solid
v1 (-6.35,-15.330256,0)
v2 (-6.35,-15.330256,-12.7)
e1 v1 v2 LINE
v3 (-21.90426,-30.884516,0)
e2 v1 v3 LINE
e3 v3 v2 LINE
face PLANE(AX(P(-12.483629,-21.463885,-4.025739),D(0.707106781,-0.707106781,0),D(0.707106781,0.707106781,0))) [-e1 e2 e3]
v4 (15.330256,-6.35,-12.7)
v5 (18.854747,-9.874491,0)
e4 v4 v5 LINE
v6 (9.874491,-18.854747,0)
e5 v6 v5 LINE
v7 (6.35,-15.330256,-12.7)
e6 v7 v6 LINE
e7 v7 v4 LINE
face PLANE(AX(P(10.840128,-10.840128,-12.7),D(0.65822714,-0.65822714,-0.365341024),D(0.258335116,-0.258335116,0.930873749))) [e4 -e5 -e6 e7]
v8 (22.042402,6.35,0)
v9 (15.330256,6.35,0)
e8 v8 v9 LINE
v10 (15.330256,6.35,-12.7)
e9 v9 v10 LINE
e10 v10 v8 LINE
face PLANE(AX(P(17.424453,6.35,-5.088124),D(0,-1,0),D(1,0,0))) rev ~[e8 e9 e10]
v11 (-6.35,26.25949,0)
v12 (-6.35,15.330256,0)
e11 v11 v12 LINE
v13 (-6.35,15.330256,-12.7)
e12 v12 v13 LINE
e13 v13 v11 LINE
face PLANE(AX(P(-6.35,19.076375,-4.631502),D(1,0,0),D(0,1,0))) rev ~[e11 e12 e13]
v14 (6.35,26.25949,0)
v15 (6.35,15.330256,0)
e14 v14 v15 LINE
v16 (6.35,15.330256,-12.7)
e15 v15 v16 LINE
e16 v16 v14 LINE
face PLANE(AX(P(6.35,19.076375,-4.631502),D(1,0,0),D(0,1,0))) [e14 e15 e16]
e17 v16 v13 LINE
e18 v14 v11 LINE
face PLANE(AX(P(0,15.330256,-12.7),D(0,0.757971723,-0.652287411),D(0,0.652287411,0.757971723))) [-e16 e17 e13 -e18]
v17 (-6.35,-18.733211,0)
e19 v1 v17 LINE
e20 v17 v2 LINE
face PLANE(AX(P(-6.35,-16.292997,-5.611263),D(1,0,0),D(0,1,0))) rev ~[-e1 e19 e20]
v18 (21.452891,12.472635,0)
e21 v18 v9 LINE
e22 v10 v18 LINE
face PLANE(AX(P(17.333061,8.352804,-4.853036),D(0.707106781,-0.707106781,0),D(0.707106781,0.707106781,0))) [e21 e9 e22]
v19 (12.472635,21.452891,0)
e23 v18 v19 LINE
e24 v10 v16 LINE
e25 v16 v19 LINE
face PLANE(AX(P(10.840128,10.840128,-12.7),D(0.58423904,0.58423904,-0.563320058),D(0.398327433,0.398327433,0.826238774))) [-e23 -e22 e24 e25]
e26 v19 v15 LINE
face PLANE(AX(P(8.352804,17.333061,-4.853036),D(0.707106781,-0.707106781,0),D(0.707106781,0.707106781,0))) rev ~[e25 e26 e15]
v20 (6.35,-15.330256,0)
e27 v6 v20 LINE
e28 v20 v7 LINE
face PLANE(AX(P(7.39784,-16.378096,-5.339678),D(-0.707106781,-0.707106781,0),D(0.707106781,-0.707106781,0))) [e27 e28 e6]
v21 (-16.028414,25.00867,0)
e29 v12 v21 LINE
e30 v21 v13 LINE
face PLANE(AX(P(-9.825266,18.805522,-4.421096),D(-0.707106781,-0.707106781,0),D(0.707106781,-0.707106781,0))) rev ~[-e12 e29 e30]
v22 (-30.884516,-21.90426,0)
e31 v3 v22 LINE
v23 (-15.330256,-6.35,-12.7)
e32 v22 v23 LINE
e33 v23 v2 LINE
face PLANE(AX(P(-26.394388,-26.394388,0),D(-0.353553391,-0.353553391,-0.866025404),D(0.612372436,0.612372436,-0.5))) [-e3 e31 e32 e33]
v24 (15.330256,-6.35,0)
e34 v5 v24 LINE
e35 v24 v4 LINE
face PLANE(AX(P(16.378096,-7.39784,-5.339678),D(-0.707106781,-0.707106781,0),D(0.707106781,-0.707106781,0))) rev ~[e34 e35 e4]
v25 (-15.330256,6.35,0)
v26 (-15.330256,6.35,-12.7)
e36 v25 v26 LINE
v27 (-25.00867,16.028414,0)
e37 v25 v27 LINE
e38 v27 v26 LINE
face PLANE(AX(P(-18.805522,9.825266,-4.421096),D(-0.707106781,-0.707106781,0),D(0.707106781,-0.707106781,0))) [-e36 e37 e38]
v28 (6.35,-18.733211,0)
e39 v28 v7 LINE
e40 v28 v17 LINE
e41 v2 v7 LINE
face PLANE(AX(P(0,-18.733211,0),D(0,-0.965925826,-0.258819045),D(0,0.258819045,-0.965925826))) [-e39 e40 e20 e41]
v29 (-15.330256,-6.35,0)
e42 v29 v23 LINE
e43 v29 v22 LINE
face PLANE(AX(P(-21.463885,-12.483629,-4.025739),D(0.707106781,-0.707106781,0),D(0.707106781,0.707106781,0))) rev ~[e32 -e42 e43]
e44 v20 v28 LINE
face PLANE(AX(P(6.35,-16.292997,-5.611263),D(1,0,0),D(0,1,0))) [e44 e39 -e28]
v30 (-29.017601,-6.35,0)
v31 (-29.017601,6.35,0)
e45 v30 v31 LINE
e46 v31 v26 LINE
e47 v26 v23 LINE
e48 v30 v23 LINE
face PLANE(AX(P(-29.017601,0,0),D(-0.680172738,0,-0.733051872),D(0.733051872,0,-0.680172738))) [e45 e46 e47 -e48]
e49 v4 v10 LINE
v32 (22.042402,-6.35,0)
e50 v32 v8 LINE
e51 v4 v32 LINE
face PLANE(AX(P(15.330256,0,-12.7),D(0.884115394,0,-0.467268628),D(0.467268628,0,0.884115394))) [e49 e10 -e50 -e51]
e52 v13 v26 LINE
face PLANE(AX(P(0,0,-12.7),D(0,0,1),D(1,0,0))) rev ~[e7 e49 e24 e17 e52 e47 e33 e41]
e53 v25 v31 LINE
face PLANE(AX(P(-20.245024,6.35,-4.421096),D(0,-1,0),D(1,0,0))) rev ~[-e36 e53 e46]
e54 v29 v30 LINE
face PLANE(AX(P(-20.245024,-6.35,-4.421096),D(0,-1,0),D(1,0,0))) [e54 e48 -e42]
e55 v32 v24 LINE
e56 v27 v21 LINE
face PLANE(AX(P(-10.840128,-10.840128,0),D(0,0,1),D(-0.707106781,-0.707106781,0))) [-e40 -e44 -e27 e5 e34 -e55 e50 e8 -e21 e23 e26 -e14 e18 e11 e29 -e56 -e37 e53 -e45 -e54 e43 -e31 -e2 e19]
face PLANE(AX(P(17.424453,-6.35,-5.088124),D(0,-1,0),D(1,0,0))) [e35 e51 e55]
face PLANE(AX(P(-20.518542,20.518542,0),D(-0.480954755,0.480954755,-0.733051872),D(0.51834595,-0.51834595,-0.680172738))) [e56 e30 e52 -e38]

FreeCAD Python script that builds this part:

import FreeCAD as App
import Part
import Sketcher
from FreeCAD import Vector
Q = App.Units.Quantity


def add_polygon(sketch, points):
    """Adds a closed chain of lines whose ends are joined by coincident constraints."""
    first, n = sketch.GeometryCount, len(points)
    for a, b in zip(points, points[1:] + points[:1]):
        sketch.addGeometry(Part.LineSegment(App.Vector(*a, 0), App.Vector(*b, 0)), False)
    for i in range(n):
        sketch.addConstraint(Sketcher.Constraint("Coincident", first + i, 2, first + (i + 1) % n, 1))

doc = App.newDocument("Part")
body = doc.addObject("PartDesign::Body", "Body")

# Sketch on XY plane
sketch1 = body.newObject("Sketcher::SketchObject", "Sketch")
sketch1.AttachmentSupport = (doc.getObject("XY_Plane"), [""])
sketch1.MapMode = "FlatFace"
add_polygon(sketch1, [(6, -15), (15, -6), (15, 6), (6, 15), (-6, 15), (-15, 6), (-15, -6), (-6, -15)])  # lines 0-7
sketch1.addConstraint([
    Sketcher.Constraint("Vertical", 1),
    Sketcher.Constraint("Horizontal", 3),
    Sketcher.Constraint("Vertical", 5),
    Sketcher.Constraint("Horizontal", 7),
    Sketcher.Constraint("Symmetric", 0, 2, 4, 2, -1, 1),
    Sketcher.Constraint("Symmetric", 2, 2, 6, 2, -1, 1),
    Sketcher.Constraint("Perpendicular", 0, 2),
    Sketcher.Constraint("Perpendicular", 2, 4),
    Sketcher.Constraint("Perpendicular", 4, 6),
    Sketcher.Constraint("Horizontal", 1, 2, 4, 2),
    Sketcher.Constraint("Vertical", 3, 2, 6, 2),
    Sketcher.Constraint("Equal", 7, 1),
    Sketcher.Constraint("DistanceX", 3, 2, 3, 1, Q("0.5 in")),
    Sketcher.Constraint("Distance", 0, Q("0.5 in")),
])
pad1 = body.newObject("PartDesign::Pad", "Pad")
pad1.Profile = sketch1
pad1.Length = Q("0.5 in")
pad1.Reversed = True

# Sketch on YZ plane
sketch2 = body.newObject("Sketcher::SketchObject", "Sketch001")
sketch2.AttachmentSupport = (doc.getObject("YZ_Plane"), [""])
sketch2.MapMode = "FlatFace"
add_polygon(sketch2, [(-15.3, -12.7), (-15.3, 0), (-18.7, 0)])  # lines 0-2
sketch2.addConstraint([
    Sketcher.Constraint("Vertical", 0),
    Sketcher.Constraint("Horizontal", 1),
    Sketcher.Constraint("PointOnObject", 0, 2, -1),
    Sketcher.Constraint("DistanceY", 0, 1, 0, 2, Q("0.5 in")),
    Sketcher.Constraint("Angle", 2, Q("-75 deg")),
    Sketcher.Constraint("DistanceX", 1, 2, -1, 1, Q("18.733211 mm")),
])
pad2 = body.newObject("PartDesign::Pad", "Pad001")
pad2.Profile = sketch2
pad2.Length = Q("0.5 in")
pad2.Midplane = True

# Sketch on an angled plane
sketch3 = body.newObject("Sketcher::SketchObject", "Sketch002")
sketch3.Placement = App.Placement(Vector(0, 0, 0), App.Rotation(Vector(0.707106781, -0.707106781, 0), Vector(0, 0, 0.999999999), Vector(-0.707106781, -0.707106781, 0), "ZXY"))
add_polygon(sketch3, [(20.3, 0), (15.3, 0), (15.3, -12.7)])  # lines 0-2
sketch3.addConstraint([
    Sketcher.Constraint("Horizontal", 0),
    Sketcher.Constraint("Vertical", 1),
    Sketcher.Constraint("PointOnObject", 0, 2, -1),
    Sketcher.Constraint("DistanceY", 1, 2, 1, 1, Q("0.5 in")),
    Sketcher.Constraint("DistanceX", 0, 2, 0, 1, Q("4.984383 mm")),
    Sketcher.Constraint("DistanceX", -1, 1, 2, 2, Q("20.314639 mm")),
])
pad3 = body.newObject("PartDesign::Pad", "Pad002")
pad3.Profile = sketch3
pad3.Length = Q("0.5 in")
pad3.Midplane = True

# Sketch on XZ plane
sketch4 = body.newObject("Sketcher::SketchObject", "Sketch003")
sketch4.AttachmentSupport = (doc.getObject("XZ_Plane"), [""])
sketch4.MapMode = "FlatFace"
add_polygon(sketch4, [(22, 0), (15, 0), (15, -13)])  # lines 0-2
sketch4.addConstraint([
    Sketcher.Constraint("Horizontal", 0),
    Sketcher.Constraint("Vertical", 1),
    Sketcher.Constraint("PointOnObject", 0, 2, -1),
    Sketcher.Constraint("DistanceY", 1, 2, 1, 1, Q("0.5 in")),
    Sketcher.Constraint("Distance", 2, Q("14.364641 mm")),
    Sketcher.Constraint("DistanceX", -1, 1, 0, 2, Q("15.330256 mm")),
])
pad4 = body.newObject("PartDesign::Pad", "Pad003")
pad4.Profile = sketch4
pad4.Length = Q("0.5 in")
pad4.Midplane = True

# Sketch on an angled plane
sketch5 = body.newObject("Sketcher::SketchObject", "Sketch004")
sketch5.Placement = App.Placement(Vector(0, 0, 0), App.Rotation(Vector(0.707106781, 0.707106781, 0), Vector(0, 0, 0.999999999), Vector(0.707106781, -0.707106781, 0), "ZXY"))
add_polygon(sketch5, [(24, 0), (15, 0), (15, -13)])  # lines 0-2
sketch5.addConstraint([
    Sketcher.Constraint("Horizontal", 0),
    Sketcher.Constraint("Vertical", 1),
    Sketcher.Constraint("PointOnObject", 0, 2, -1),
    Sketcher.Constraint("DistanceY", 1, 2, 1, 1, Q("0.5 in")),
    Sketcher.Constraint("Distance", 2, Q("15.370859 mm")),
    Sketcher.Constraint("DistanceX", -1, 1, 2, 2, Q("23.988969 mm")),
])
pad5 = body.newObject("PartDesign::Pad", "Pad004")
pad5.Profile = sketch5
pad5.Length = Q("0.5 in")
pad5.Midplane = True

# Sketch on YZ plane
sketch6 = body.newObject("Sketcher::SketchObject", "Sketch005")
sketch6.AttachmentSupport = (doc.getObject("YZ_Plane"), [""])
sketch6.MapMode = "FlatFace"
add_polygon(sketch6, [(26, 0), (15, 0), (15, -13)])  # lines 0-2
sketch6.addConstraint([
    Sketcher.Constraint("Horizontal", 0),
    Sketcher.Constraint("Vertical", 1),
    Sketcher.Constraint("PointOnObject", 0, 2, -1),
    Sketcher.Constraint("DistanceY", 1, 2, 1, 1, Q("0.5 in")),
    Sketcher.Constraint("DistanceX", 0, 2, 0, 1, Q("10.929234 mm")),
    Sketcher.Constraint("DistanceX", -1, 1, 2, 2, Q("26.25949 mm")),
])
pad6 = body.newObject("PartDesign::Pad", "Pad005")
pad6.Profile = sketch6
pad6.Length = Q("0.5 in")
pad6.Midplane = True

# Sketch on an angled plane
sketch7 = body.newObject("Sketcher::SketchObject", "Sketch006")
sketch7.Placement = App.Placement(Vector(0, 0, 0), App.Rotation(Vector(0.707106781, -0.707106781, 0), Vector(0, 0, 0.999999999), Vector(-0.707106781, -0.707106781, 0), "ZXY"))
add_polygon(sketch7, [(-15, -13), (-15, 0), (-29, 0)])  # lines 0-2
sketch7.addConstraint([
    Sketcher.Constraint("Vertical", 0),
    Sketcher.Constraint("Horizontal", 1),
    Sketcher.Constraint("PointOnObject", 0, 2, -1),
    Sketcher.Constraint("DistanceY", 0, 1, 0, 2, Q("0.5 in")),
    Sketcher.Constraint("DistanceX", 1, 2, -1, 1, Q("29.017601 mm")),
    Sketcher.Constraint("DistanceX", 1, 2, 1, 1, Q("13.687345 mm")),
])
pad7 = body.newObject("PartDesign::Pad", "Pad006")
pad7.Profile = sketch7
pad7.Length = Q("0.5 in")
pad7.Midplane = True

# Sketch on XZ plane
sketch8 = body.newObject("Sketcher::SketchObject", "Sketch007")
sketch8.AttachmentSupport = (doc.getObject("XZ_Plane"), [""])
sketch8.MapMode = "FlatFace"
add_polygon(sketch8, [(-15, -13), (-15, 0), (-29, 0)])  # lines 0-2
sketch8.addConstraint([
    Sketcher.Constraint("Vertical", 0),
    Sketcher.Constraint("Horizontal", 1),
    Sketcher.Constraint("PointOnObject", 0, 2, -1),
    Sketcher.Constraint("DistanceY", 0, 1, 0, 2, Q("0.5 in")),
    Sketcher.Constraint("DistanceX", 1, 2, -1, 1, Q("29.017601 mm")),
    Sketcher.Constraint("DistanceX", 1, 2, 1, 1, Q("13.687345 mm")),
])
pad8 = body.newObject("PartDesign::Pad", "Pad007")
pad8.Profile = sketch8
pad8.Length = Q("0.5 in")
pad8.Midplane = True

# Sketch on an angled plane
sketch9 = body.newObject("Sketcher::SketchObject", "Sketch008")
sketch9.Placement = App.Placement(Vector(0, 0, 0), App.Rotation(Vector(0.707106781, 0.707106781, 0), Vector(0, 0, 0.999999999), Vector(0.707106781, -0.707106781, 0), "ZXY"))
add_polygon(sketch9, [(-15, -13), (-15, 0), (-37, 0)])  # lines 0-2
sketch9.addConstraint([
    Sketcher.Constraint("Vertical", 0),
    Sketcher.Constraint("Horizontal", 1),
    Sketcher.Constraint("PointOnObject", 0, 2, -1),
    Sketcher.Constraint("Distance", 2, Q("1 in")),
    Sketcher.Constraint("DistanceY", 0, 1, 0, 2, Q("0.5 in")),
    Sketcher.Constraint("DistanceX", 1, 2, -1, 1, Q("37.327301 mm")),
])
pad9 = body.newObject("PartDesign::Pad", "Pad008")
pad9.Profile = sketch9
pad9.Length = Q("0.5 in")
pad9.Midplane = True

doc.recompute()
